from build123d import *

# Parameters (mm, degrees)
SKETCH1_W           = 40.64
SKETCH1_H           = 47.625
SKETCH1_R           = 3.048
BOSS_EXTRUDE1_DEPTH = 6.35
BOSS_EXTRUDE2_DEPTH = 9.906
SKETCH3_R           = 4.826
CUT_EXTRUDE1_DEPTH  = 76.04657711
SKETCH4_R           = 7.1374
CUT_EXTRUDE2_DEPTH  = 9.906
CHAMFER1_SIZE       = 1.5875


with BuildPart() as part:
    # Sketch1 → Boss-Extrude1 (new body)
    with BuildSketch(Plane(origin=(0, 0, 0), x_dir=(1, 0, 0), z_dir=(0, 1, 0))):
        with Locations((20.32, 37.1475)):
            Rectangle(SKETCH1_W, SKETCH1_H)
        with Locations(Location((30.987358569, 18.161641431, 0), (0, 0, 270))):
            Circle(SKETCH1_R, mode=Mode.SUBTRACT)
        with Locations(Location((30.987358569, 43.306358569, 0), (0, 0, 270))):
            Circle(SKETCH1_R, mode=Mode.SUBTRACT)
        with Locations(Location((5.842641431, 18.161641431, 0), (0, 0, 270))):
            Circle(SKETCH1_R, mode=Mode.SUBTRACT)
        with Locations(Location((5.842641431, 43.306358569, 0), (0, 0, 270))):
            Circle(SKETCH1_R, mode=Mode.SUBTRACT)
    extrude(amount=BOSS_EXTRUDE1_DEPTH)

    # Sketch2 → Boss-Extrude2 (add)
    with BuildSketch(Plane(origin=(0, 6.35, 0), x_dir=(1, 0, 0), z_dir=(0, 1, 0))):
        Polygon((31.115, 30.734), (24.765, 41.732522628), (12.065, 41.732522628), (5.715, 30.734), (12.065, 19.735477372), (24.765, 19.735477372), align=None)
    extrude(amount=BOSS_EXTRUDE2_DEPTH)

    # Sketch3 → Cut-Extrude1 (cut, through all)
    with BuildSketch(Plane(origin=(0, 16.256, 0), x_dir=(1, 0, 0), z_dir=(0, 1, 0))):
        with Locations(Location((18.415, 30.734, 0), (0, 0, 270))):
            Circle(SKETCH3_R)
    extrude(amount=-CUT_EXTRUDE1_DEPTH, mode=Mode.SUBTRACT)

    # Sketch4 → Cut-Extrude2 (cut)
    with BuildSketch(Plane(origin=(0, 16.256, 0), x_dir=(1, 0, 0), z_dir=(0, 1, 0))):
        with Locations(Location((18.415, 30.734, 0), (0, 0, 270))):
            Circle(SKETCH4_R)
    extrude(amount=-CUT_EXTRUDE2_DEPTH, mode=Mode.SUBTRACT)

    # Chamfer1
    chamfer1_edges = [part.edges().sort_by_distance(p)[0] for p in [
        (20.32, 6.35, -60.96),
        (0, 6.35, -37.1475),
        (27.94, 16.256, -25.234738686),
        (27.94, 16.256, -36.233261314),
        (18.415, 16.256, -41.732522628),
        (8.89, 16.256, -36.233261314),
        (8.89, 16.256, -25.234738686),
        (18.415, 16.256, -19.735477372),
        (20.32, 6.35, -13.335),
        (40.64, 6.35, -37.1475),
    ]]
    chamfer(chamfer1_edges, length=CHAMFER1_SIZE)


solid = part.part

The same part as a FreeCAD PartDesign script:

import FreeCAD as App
import Part
import Sketcher
from FreeCAD import Vector
Q = App.Units.Quantity


def edges_at(feature, points):
    """Names of the edges that pass closest to the given points."""
    edges = feature.Shape.Edges
    near = lambda p: min(range(len(edges)), key=lambda i: edges[i].distToShape(Part.Vertex(*p))[0])
    return sorted({f"Edge{near(p) + 1}" for p in points})

doc = App.newDocument("Part")
body = doc.addObject("PartDesign::Body", "Body")

# Sketch on XZ plane
sketch1 = doc.addObject("Sketcher::SketchObject", "Sketch")
body.addObject(sketch1)
sketch1.AttachmentSupport = (doc.XZ_Plane, [""])
sketch1.MapMode = "FlatFace"
sketch1.addGeometry(Part.LineSegment(Vector(0, -61, 0), Vector(0, -13.3, 0)), False)
sketch1.addGeometry(Part.LineSegment(Vector(0, -13.3, 0), Vector(40.6, -13.3, 0)), False)
sketch1.addGeometry(Part.LineSegment(Vector(40.6, -13.3, 0), Vector(40.6, -61, 0)), False)
sketch1.addGeometry(Part.LineSegment(Vector(40.6, -61, 0), Vector(0, -61, 0)), False)
sketch1.addGeometry(Part.Circle(Vector(5.8, -18.2, 0), Vector(0, 0, 1), 3), False)
sketch1.addGeometry(Part.Circle(Vector(31, -18.2, 0), Vector(0, 0, 1), 3), False)
sketch1.addGeometry(Part.Circle(Vector(5.8, -43.3, 0), Vector(0, 0, 1), 3), False)
sketch1.addGeometry(Part.Circle(Vector(31, -43.3, 0), Vector(0, 0, 1), 3), False)
sketch1.addConstraint(Sketcher.Constraint("Coincident", 0, 2, 1, 1))
sketch1.addConstraint(Sketcher.Constraint("Coincident", 1, 2, 2, 1))
sketch1.addConstraint(Sketcher.Constraint("Coincident", 2, 2, 3, 1))
sketch1.addConstraint(Sketcher.Constraint("Coincident", 3, 2, 0, 1))
sketch1.addConstraint(Sketcher.Constraint("Vertical", 0))
sketch1.addConstraint(Sketcher.Constraint("Horizontal", 1))
sketch1.addConstraint(Sketcher.Constraint("Vertical", 2))
sketch1.addConstraint(Sketcher.Constraint("Horizontal", 3))
sketch1.addConstraint(Sketcher.Constraint("Equal", 4, 5))
sketch1.addConstraint(Sketcher.Constraint("Equal", 5, 6))
sketch1.addConstraint(Sketcher.Constraint("Equal", 6, 7))
sketch1.addConstraint(Sketcher.Constraint("PointOnObject", 0, 2, -2))
sketch1.addConstraint(Sketcher.Constraint("Horizontal", 4, 3, 5, 3))
sketch1.addConstraint(Sketcher.Constraint("Horizontal", 6, 3, 7, 3))
sketch1.addConstraint(Sketcher.Constraint("Vertical", 4, 3, 6, 3))
sketch1.addConstraint(Sketcher.Constraint("Vertical", 5, 3, 7, 3))
sketch1.addConstraint(Sketcher.Constraint("Diameter", 4, Q("0.24 in")))
sketch1.addConstraint(Sketcher.Constraint("DistanceX", 1, 1, 1, 2, Q("1.6 in")))
sketch1.addConstraint(Sketcher.Constraint("DistanceY", 2, 2, -1, 1, Q("2.4 in")))
sketch1.addConstraint(Sketcher.Constraint("DistanceY", 0, 1, 0, 2, Q("1.875 in")))
sketch1.addConstraint(Sketcher.Constraint("DistanceX", -1, 1, 4, 3, Q("5.842641 mm")))
sketch1.addConstraint(Sketcher.Constraint("DistanceY", 4, 3, -1, 1, Q("18.161641 mm")))
sketch1.addConstraint(Sketcher.Constraint("DistanceX", -1, 1, 5, 3, Q("30.987359 mm")))
sketch1.addConstraint(Sketcher.Constraint("DistanceY", 6, 3, -1, 1, Q("43.306359 mm")))
pad1 = doc.addObject("PartDesign::Pad", "Pad")
body.addObject(pad1)
pad1.Profile = sketch1
pad1.Length = Q("0.25 in")
pad1.Reversed = True

# Sketch on XZ plane
sketch2 = doc.addObject("Sketcher::SketchObject", "Sketch001")
body.addObject(sketch2)
sketch2.AttachmentSupport = (doc.XZ_Plane, [""])
sketch2.MapMode = "FlatFace"
sketch2.AttachmentOffset = App.Placement(Vector(0, 0, -0.25 * 25.4), App.Rotation())
sketch2.addGeometry(Part.LineSegment(Vector(31, -31, 0), Vector(25, -42, 0)), False)
sketch2.addGeometry(Part.LineSegment(Vector(25, -42, 0), Vector(12, -42, 0)), False)
sketch2.addGeometry(Part.LineSegment(Vector(12, -42, 0), Vector(6, -31, 0)), False)
sketch2.addGeometry(Part.LineSegment(Vector(6, -31, 0), Vector(12, -20, 0)), False)
sketch2.addGeometry(Part.LineSegment(Vector(12, -20, 0), Vector(25, -20, 0)), False)
sketch2.addGeometry(Part.LineSegment(Vector(25, -20, 0), Vector(31, -31, 0)), False)
sketch2.addConstraint(Sketcher.Constraint("Coincident", 0, 2, 1, 1))
sketch2.addConstraint(Sketcher.Constraint("Coincident", 1, 2, 2, 1))
sketch2.addConstraint(Sketcher.Constraint("Coincident", 2, 2, 3, 1))
sketch2.addConstraint(Sketcher.Constraint("Coincident", 3, 2, 4, 1))
sketch2.addConstraint(Sketcher.Constraint("Coincident", 4, 2, 5, 1))
sketch2.addConstraint(Sketcher.Constraint("Coincident", 5, 2, 0, 1))
sketch2.addConstraint(Sketcher.Constraint("Horizontal", 1))
sketch2.addConstraint(Sketcher.Constraint("Horizontal", 4))
sketch2.addConstraint(Sketcher.Constraint("Parallel", 0, 3))
sketch2.addConstraint(Sketcher.Constraint("Parallel", 2, 5))
sketch2.addConstraint(Sketcher.Constraint("Horizontal", 2, 2, 5, 2))
sketch2.addConstraint(Sketcher.Constraint("Vertical", 1, 2, 3, 2))
sketch2.addConstraint(Sketcher.Constraint("Vertical", 0, 2, 4, 2))
sketch2.addConstraint(Sketcher.Constraint("DistanceX", 1, 2, 1, 1, Q("0.5 in")))
sketch2.addConstraint(Sketcher.Constraint("Angle", 0, Q("-120 deg")))
sketch2.addConstraint(Sketcher.Constraint("DistanceX", 2, 2, 5, 2, Q("1 in")))
sketch2.addConstraint(Sketcher.Constraint("DistanceY", 2, 2, -1, 1, Q("1.21 in")))
sketch2.addConstraint(Sketcher.Constraint("DistanceX", -1, 1, 0, 2, Q("0.975 in")))
pad2 = doc.addObject("PartDesign::Pad", "Pad001")
body.addObject(pad2)
pad2.Profile = sketch2
pad2.Length = Q("0.39 in")
pad2.Reversed = True

# Sketch on XZ plane
sketch3 = doc.addObject("Sketcher::SketchObject", "Sketch002")
body.addObject(sketch3)
sketch3.AttachmentSupport = (doc.XZ_Plane, [""])
sketch3.MapMode = "FlatFace"
sketch3.AttachmentOffset = App.Placement(Vector(0, 0, -0.64 * 25.4), App.Rotation())
sketch3.addGeometry(Part.Circle(Vector(18.4, -30.7, 0), Vector(0, 0, 1), 4.8), False)
sketch3.addConstraint(Sketcher.Constraint("Diameter", 0, Q("0.38 in")))
sketch3.addConstraint(Sketcher.Constraint("DistanceY", 0, 3, -1, 1, Q("1.21 in")))
sketch3.addConstraint(Sketcher.Constraint("DistanceX", -1, 1, 0, 3, Q("0.725 in")))
pocket1 = doc.addObject("PartDesign::Pocket", "Pocket")
body.addObject(pocket1)
pocket1.Profile = sketch3
pocket1.Type = "ThroughAll"
pocket1.Reversed = True

# Sketch on XZ plane
sketch4 = doc.addObject("Sketcher::SketchObject", "Sketch003")
body.addObject(sketch4)
sketch4.AttachmentSupport = (doc.XZ_Plane, [""])
sketch4.MapMode = "FlatFace"
sketch4.AttachmentOffset = App.Placement(Vector(0, 0, -0.64 * 25.4), App.Rotation())
sketch4.addGeometry(Part.Circle(Vector(18, -31, 0), Vector(0, 0, 1), 7), False)
sketch4.addConstraint(Sketcher.Constraint("Diameter", 0, Q("0.562 in")))
sketch4.addConstraint(Sketcher.Constraint("DistanceY", 0, 3, -1, 1, Q("1.21 in")))
sketch4.addConstraint(Sketcher.Constraint("DistanceX", -1, 1, 0, 3, Q("0.725 in")))
pocket2 = doc.addObject("PartDesign::Pocket", "Pocket001")
body.addObject(pocket2)
pocket2.Profile = sketch4
pocket2.Length = Q("0.39 in")
pocket2.Reversed = True
doc.recompute()

chamfer = doc.addObject("PartDesign::Chamfer", "Chamfer")
body.addObject(chamfer)
chamfer.Base = (pocket2, edges_at(pocket2, [
    (20.32, 6.35, -60.96),
    (0, 6.35, -37.148),
    (27.94, 16.256, -25.235),
    (27.94, 16.256, -36.233),
    (18.415, 16.256, -41.733),
    (8.89, 16.256, -36.233),
    (8.89, 16.256, -25.235),
    (18.415, 16.256, -19.735),
    (20.32, 6.35, -13.335),
    (40.64, 6.35, -37.148),
]))
chamfer.Size = Q("0.0625 in")

doc.recompute()
